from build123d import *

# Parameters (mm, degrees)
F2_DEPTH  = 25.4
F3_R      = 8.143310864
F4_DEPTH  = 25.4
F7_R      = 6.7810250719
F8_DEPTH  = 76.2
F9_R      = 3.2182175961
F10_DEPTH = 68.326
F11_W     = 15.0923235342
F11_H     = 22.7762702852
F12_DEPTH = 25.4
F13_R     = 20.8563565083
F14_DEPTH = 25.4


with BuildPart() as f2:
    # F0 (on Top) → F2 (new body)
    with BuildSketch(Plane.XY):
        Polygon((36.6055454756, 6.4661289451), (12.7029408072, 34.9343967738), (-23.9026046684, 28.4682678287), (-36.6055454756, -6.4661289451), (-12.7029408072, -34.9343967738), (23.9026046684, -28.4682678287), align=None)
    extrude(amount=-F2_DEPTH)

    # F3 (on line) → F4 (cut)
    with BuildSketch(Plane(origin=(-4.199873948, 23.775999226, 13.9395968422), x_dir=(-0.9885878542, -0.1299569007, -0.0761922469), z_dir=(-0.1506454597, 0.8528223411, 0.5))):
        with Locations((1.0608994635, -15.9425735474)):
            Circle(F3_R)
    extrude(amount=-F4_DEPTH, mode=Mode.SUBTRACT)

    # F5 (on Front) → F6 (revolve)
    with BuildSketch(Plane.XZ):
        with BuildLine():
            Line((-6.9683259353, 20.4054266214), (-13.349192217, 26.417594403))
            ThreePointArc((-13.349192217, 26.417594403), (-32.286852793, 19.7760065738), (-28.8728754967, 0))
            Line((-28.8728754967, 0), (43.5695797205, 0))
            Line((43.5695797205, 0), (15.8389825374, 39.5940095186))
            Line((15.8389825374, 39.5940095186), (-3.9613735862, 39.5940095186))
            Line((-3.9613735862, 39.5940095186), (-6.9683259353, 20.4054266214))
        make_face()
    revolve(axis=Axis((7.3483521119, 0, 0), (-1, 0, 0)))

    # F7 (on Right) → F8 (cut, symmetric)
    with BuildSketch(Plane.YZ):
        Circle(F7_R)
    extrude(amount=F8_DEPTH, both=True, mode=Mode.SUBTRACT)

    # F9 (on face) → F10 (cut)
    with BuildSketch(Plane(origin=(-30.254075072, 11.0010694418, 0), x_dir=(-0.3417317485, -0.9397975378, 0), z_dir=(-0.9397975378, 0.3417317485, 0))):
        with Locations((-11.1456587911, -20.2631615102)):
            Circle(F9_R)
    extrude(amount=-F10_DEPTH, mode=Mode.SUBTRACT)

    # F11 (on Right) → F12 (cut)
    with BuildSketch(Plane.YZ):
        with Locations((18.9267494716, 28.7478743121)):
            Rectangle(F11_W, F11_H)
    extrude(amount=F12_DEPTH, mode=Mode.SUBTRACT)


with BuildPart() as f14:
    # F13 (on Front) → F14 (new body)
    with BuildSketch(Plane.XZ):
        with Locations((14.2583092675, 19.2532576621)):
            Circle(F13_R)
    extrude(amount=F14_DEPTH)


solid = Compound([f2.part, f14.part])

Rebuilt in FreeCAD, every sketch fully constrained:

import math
import FreeCAD as App
import Part
import Sketcher
from FreeCAD import Vector
Q = App.Units.Quantity


def add_polygon(sketch, points):
    """Adds a closed chain of lines whose ends are joined by coincident constraints."""
    first, n = sketch.GeometryCount, len(points)
    for a, b in zip(points, points[1:] + points[:1]):
        sketch.addGeometry(Part.LineSegment(App.Vector(*a, 0), App.Vector(*b, 0)), False)
    for i in range(n):
        sketch.addConstraint(Sketcher.Constraint("Coincident", first + i, 2, first + (i + 1) % n, 1))

doc = App.newDocument("Part")
body = doc.addObject("PartDesign::Body", "Body")

# Sketch on XY plane
sketch1 = body.newObject("Sketcher::SketchObject", "Sketch")
sketch1.AttachmentSupport = (doc.getObject("XY_Plane"), [""])
sketch1.MapMode = "FlatFace"
add_polygon(sketch1, [(37, 6), (13, 35), (-24, 28), (-37, -6), (-13, -35), (24, -28)])  # lines 0-5
sketch1.addConstraint([
    Sketcher.Constraint("Symmetric", 0, 2, 3, 2, -1, 1),
    Sketcher.Constraint("Symmetric", 1, 2, 4, 2, -1, 1),
    Sketcher.Constraint("Symmetric", 2, 2, 5, 2, -1, 1),
    Sketcher.Constraint("Equal", 0, 1),
    Sketcher.Constraint("Equal", 1, 2),
    Sketcher.Constraint("Distance", 0, Q("37.172258 mm")),
    Sketcher.Constraint("DistanceX", -1, 1, 0, 2, Q("12.702941 mm")),
    Sketcher.Constraint("DistanceY", 2, 2, -1, 1, Q("6.466129 mm")),
    Sketcher.Constraint("DistanceY", 1, 2, 0, 2, Q("6.466129 mm")),
])
pad1 = body.newObject("PartDesign::Pad", "Pad")
pad1.Profile = sketch1
pad1.Length = Q("1 in")
pad1.Reversed = True

# Sketch on an angled plane
sketch2 = body.newObject("Sketcher::SketchObject", "Sketch001")
sketch2.Placement = App.Placement(Vector(-4.199874, 23.775999, 13.939597), App.Rotation(Vector(-0.988587854, -0.129956901, -0.076192247), Vector(0, -0.505771943, 0.862667225), Vector(-0.15064546, 0.852822341, 0.5), "ZXY"))
sketch2.addGeometry(Part.Circle(Vector(1, -16, 0), Vector(0, 0, 1), 8), False)
sketch2.addConstraint([
    Sketcher.Constraint("Diameter", 0, Q("16.286622 mm")),
    Sketcher.Constraint("DistanceX", -1, 1, 0, 3, Q("1.060899 mm")),
    Sketcher.Constraint("DistanceY", 0, 3, -1, 1, Q("15.942574 mm")),
])
pocket1 = body.newObject("PartDesign::Pocket", "Pocket")
pocket1.Profile = sketch2
pocket1.Length = Q("1 in")

# Sketch on XZ plane
sketch3 = body.newObject("Sketcher::SketchObject", "Sketch002")
sketch3.AttachmentSupport = (doc.getObject("XZ_Plane"), [""])
sketch3.MapMode = "FlatFace"
sketch3.addGeometry([
    Part.LineSegment(Vector(-7, 20, 0), Vector(-13, 26, 0)),  # 0
    Part.ArcOfCircle(Part.Circle(Vector(-19, 12, 0), Vector(0, 0, 1), 16), math.radians(69), math.radians(230)),  # 1
    Part.LineSegment(Vector(-29, 0, 0), Vector(44, 0, 0)),  # 2
    Part.LineSegment(Vector(44, 0, 0), Vector(16, 40, 0)),  # 3
    Part.LineSegment(Vector(16, 40, 0), Vector(-4, 40, 0)),  # 4
    Part.LineSegment(Vector(-4, 40, 0), Vector(-7, 20, 0)),  # 5
], False)
sketch3.addConstraint([
    Sketcher.Constraint("Coincident", 0, 2, 1, 1),
    Sketcher.Constraint("Coincident", 1, 2, 2, 1),
    Sketcher.Constraint("Coincident", 2, 2, 3, 1),
    Sketcher.Constraint("Coincident", 3, 2, 4, 1),
    Sketcher.Constraint("Coincident", 4, 2, 5, 1),
    Sketcher.Constraint("Coincident", 5, 2, 0, 1),
    Sketcher.Constraint("Horizontal", 2),
    Sketcher.Constraint("Horizontal", 4),
    Sketcher.Constraint("PointOnObject", 1, 2, -1),
    Sketcher.Constraint("Radius", 1, Q("15.534996 mm")),
    Sketcher.Constraint("DistanceY", 1, 3, 3, 2, Q("27.688502 mm")),
    Sketcher.Constraint("DistanceX", 1, 2, 4, 2, Q("24.911502 mm")),
    Sketcher.Constraint("Distance", 3, Q("48.339131 mm")),
    Sketcher.Constraint("DistanceX", 2, 1, 2, 2, Q("72.442455 mm")),
    Sketcher.Constraint("DistanceX", 4, 2, 4, 1, Q("19.800356 mm")),
    Sketcher.Constraint("DistanceX", -1, 1, 2, 2, Q("43.56958 mm")),
    Sketcher.Constraint("DistanceX", 0, 2, 2, 2, Q("56.918772 mm")),
    Sketcher.Constraint("DistanceX", 1, 3, 5, 2, Q("11.924821 mm")),
    Sketcher.Constraint("DistanceY", 1, 3, 5, 2, Q("8.499919 mm")),
])
revolution = body.newObject("PartDesign::Revolution", "Revolution")
revolution.Profile = sketch3
revolution.ReferenceAxis = (sketch3, ["H_Axis"])
revolution.Angle = 360

# Sketch on YZ plane
sketch4 = body.newObject("Sketcher::SketchObject", "Sketch003")
sketch4.AttachmentSupport = (doc.getObject("YZ_Plane"), [""])
sketch4.MapMode = "FlatFace"
sketch4.addGeometry(Part.Circle(Vector(0, 0, 0), Vector(0, 0, 1), 7), False)
sketch4.addConstraint([
    Sketcher.Constraint("Coincident", 0, 3, -1, 1),
    Sketcher.Constraint("Diameter", 0, Q("13.56205 mm")),
])
pocket2 = body.newObject("PartDesign::Pocket", "Pocket001")
pocket2.Profile = sketch4
pocket2.Length = Q("6 in")
pocket2.Midplane = True

# Sketch on an angled plane
sketch5 = body.newObject("Sketcher::SketchObject", "Sketch004")
sketch5.Placement = App.Placement(Vector(-30.254075, 11.001069, 0), App.Rotation(Vector(-0.341731749, -0.939797538, 0), Vector(0, 0, 1.000000001), Vector(-0.939797538, 0.341731749, 0), "ZXY"))
sketch5.addGeometry(Part.Circle(Vector(-11.1, -20.3, 0), Vector(0, 0, 1), 3.2), False)
sketch5.addConstraint([
    Sketcher.Constraint("Diameter", 0, Q("6.436435 mm")),
    Sketcher.Constraint("DistanceX", 0, 3, -1, 1, Q("11.145659 mm")),
    Sketcher.Constraint("DistanceY", 0, 3, -1, 1, Q("20.263162 mm")),
])
pocket3 = body.newObject("PartDesign::Pocket", "Pocket002")
pocket3.Profile = sketch5
pocket3.Length = Q("2.69 in")

# Sketch on YZ plane
sketch6 = body.newObject("Sketcher::SketchObject", "Sketch005")
sketch6.AttachmentSupport = (doc.getObject("YZ_Plane"), [""])
sketch6.MapMode = "FlatFace"
add_polygon(sketch6, [(11, 40), (11, 17), (26, 17), (26, 40)])  # lines 0-3
sketch6.addConstraint([
    Sketcher.Constraint("Vertical", 0),
    Sketcher.Constraint("Horizontal", 1),
    Sketcher.Constraint("Vertical", 2),
    Sketcher.Constraint("Horizontal", 3),
    Sketcher.Constraint("DistanceY", 0, 2, 0, 1, Q("22.77627 mm")),
    Sketcher.Constraint("DistanceX", 1, 1, 1, 2, Q("15.092324 mm")),
    Sketcher.Constraint("DistanceY", -1, 1, 0, 2, Q("17.359739 mm")),
    Sketcher.Constraint("DistanceX", -1, 1, 1, 2, Q("26.472911 mm")),
])
pocket4 = body.newObject("PartDesign::Pocket", "Pocket003")
pocket4.Profile = sketch6
pocket4.Length = Q("1 in")
pocket4.Reversed = True
body2 = doc.addObject("PartDesign::Body", "Body001")

# Sketch on XZ plane
sketch7 = body2.newObject("Sketcher::SketchObject", "Sketch006")
sketch7.AttachmentSupport = (doc.getObject("XZ_Plane001"), [""])
sketch7.MapMode = "FlatFace"
sketch7.addGeometry(Part.Circle(Vector(14, 19, 0), Vector(0, 0, 1), 21), False)
sketch7.addConstraint([
    Sketcher.Constraint("Diameter", 0, Q("41.712713 mm")),
    Sketcher.Constraint("DistanceX", -1, 1, 0, 3, Q("14.258309 mm")),
    Sketcher.Constraint("DistanceY", -1, 1, 0, 3, Q("19.253258 mm")),
])
pad2 = body2.newObject("PartDesign::Pad", "Pad001")
pad2.Profile = sketch7
pad2.Length = Q("1 in")

doc.recompute()
